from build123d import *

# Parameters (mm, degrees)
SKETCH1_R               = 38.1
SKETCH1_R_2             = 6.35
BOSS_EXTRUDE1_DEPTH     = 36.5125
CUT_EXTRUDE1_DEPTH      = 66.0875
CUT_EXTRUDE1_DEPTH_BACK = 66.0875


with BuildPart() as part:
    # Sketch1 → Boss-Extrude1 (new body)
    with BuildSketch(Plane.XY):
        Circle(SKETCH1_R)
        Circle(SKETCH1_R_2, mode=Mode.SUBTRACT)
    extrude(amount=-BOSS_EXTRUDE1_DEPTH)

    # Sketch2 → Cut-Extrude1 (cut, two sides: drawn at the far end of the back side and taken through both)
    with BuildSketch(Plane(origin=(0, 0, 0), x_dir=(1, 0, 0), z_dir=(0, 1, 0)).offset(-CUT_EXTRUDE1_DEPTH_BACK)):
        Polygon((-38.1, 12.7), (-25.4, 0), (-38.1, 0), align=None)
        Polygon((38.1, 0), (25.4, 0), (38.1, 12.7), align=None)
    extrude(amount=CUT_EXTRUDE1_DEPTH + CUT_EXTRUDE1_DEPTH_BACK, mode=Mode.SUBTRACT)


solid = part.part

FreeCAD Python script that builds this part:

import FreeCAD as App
import Part
import Sketcher
from FreeCAD import Vector
Q = App.Units.Quantity

doc = App.newDocument("Part")
body = doc.addObject("PartDesign::Body", "Body")

# Sketch on XY plane
sketch1 = body.newObject("Sketcher::SketchObject", "Sketch")
sketch1.AttachmentSupport = (doc.getObject("XY_Plane"), [""])
sketch1.MapMode = "FlatFace"
sketch1.addGeometry([
    Part.Circle(Vector(0, 0, 0), Vector(0, 0, 1), 38.1),
    Part.Circle(Vector(0, 0, 0), Vector(0, 0, 1), 6.35),
], False)
sketch1.addConstraint([
    Sketcher.Constraint("Coincident", 0, 3, -1, 1),
    Sketcher.Constraint("Coincident", 1, 3, -1, 1),
    Sketcher.Constraint("Diameter", 0, Q("3 in")),
    Sketcher.Constraint("Diameter", 1, Q("0.5 in")),
])
pad1 = body.newObject("PartDesign::Pad", "Pad")
pad1.Profile = sketch1
pad1.Length = Q("1.4375 in")
pad1.Reversed = True

# Sketch on XZ plane
sketch2 = body.newObject("Sketcher::SketchObject", "Sketch001")
sketch2.AttachmentSupport = (doc.getObject("XZ_Plane"), [""])
sketch2.MapMode = "FlatFace"
sketch2.addGeometry([
    Part.LineSegment(Vector(-25.4, 0, 0), Vector(-38.1, -12.7, 0)),  # 0
    Part.LineSegment(Vector(-38.1, -12.7, 0), Vector(-38.1, 0, 0)),  # 1
    Part.LineSegment(Vector(-38.1, 0, 0), Vector(-25.4, 0, 0)),  # 2
    Part.LineSegment(Vector(25.4, 0, 0), Vector(38.1, 0, 0)),  # 3
    Part.LineSegment(Vector(38.1, 0, 0), Vector(38.1, -12.7, 0)),  # 4
    Part.LineSegment(Vector(38.1, -12.7, 0), Vector(25.4, 0, 0)),  # 5
], False)
sketch2.addConstraint([
    Sketcher.Constraint("Coincident", 0, 2, 1, 1),
    Sketcher.Constraint("Coincident", 1, 2, 2, 1),
    Sketcher.Constraint("Coincident", 2, 2, 0, 1),
    Sketcher.Constraint("Coincident", 3, 2, 4, 1),
    Sketcher.Constraint("Coincident", 4, 2, 5, 1),
    Sketcher.Constraint("Coincident", 5, 2, 3, 1),
    Sketcher.Constraint("Vertical", 1),
    Sketcher.Constraint("Horizontal", 2),
    Sketcher.Constraint("Horizontal", 3),
    Sketcher.Constraint("Vertical", 4),
    Sketcher.Constraint("Symmetric", 1, 2, 3, 2, -1, 1),
    Sketcher.Constraint("Symmetric", 2, 2, 5, 2, -2),
    Sketcher.Constraint("Perpendicular", 0, 5),
    Sketcher.Constraint("Horizontal", 0, 2, 4, 2),
    Sketcher.Constraint("DistanceX", 2, 1, 2, 2, Q("0.5 in")),
    Sketcher.Constraint("DistanceX", 2, 2, -1, 1, Q("1 in")),
])
pocket1 = body.newObject("PartDesign::Pocket", "Pocket")
pocket1.Profile = sketch2
pocket1.Type = "ThroughAll"
pocket1.Midplane = True

doc.recompute()
